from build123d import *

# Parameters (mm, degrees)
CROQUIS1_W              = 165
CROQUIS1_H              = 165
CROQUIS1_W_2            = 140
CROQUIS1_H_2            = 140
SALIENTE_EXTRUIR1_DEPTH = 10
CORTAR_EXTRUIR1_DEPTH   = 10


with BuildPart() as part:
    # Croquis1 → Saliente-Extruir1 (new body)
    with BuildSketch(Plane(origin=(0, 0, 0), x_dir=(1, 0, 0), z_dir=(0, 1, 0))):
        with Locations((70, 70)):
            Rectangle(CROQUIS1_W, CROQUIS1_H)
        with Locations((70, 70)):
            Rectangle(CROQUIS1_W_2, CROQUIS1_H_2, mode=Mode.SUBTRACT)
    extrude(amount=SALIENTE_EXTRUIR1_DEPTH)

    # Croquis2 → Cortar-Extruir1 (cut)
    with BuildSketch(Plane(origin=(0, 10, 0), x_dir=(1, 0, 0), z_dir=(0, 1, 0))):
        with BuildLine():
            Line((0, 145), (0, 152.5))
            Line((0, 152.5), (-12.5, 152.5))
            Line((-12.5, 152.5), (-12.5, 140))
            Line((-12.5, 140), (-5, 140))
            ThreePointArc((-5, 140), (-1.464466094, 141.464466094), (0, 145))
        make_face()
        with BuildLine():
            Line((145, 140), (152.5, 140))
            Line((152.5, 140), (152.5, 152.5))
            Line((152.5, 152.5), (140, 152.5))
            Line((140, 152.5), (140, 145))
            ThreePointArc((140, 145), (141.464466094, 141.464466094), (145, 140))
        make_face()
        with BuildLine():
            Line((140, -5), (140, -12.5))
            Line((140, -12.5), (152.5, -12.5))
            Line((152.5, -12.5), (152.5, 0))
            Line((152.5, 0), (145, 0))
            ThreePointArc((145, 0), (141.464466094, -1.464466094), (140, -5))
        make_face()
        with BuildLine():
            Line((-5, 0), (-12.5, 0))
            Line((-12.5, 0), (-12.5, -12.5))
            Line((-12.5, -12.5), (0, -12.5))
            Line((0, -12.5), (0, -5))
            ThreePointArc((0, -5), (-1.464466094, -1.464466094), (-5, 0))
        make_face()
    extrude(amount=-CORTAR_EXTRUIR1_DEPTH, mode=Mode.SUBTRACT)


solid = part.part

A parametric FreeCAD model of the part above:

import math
import FreeCAD as App
import Part
import Sketcher
from FreeCAD import Vector
Q = App.Units.Quantity


def add_polygon(sketch, points):
    """Adds a closed chain of lines whose ends are joined by coincident constraints."""
    first, n = sketch.GeometryCount, len(points)
    for a, b in zip(points, points[1:] + points[:1]):
        sketch.addGeometry(Part.LineSegment(App.Vector(*a, 0), App.Vector(*b, 0)), False)
    for i in range(n):
        sketch.addConstraint(Sketcher.Constraint("Coincident", first + i, 2, first + (i + 1) % n, 1))

doc = App.newDocument("Part")
body = doc.addObject("PartDesign::Body", "Body")

# Sketch on XZ plane
sketch1 = doc.addObject("Sketcher::SketchObject", "Sketch")
body.addObject(sketch1)
sketch1.AttachmentSupport = (doc.XZ_Plane, [""])
sketch1.MapMode = "FlatFace"
add_polygon(sketch1, [(-12.5, -152.5), (-12.5, 12.5), (152.5, 12.5), (152.5, -152.5)])  # lines 0-3
add_polygon(sketch1, [(140, 0), (0, 0), (0, -140), (140, -140)])  # lines 4-7
sketch1.addConstraint([
    Sketcher.Constraint("Vertical", 0),
    Sketcher.Constraint("Horizontal", 1),
    Sketcher.Constraint("Vertical", 2),
    Sketcher.Constraint("Horizontal", 3),
    Sketcher.Constraint("Horizontal", 4),
    Sketcher.Constraint("Vertical", 5),
    Sketcher.Constraint("Horizontal", 6),
    Sketcher.Constraint("Vertical", 7),
    Sketcher.Constraint("Coincident", 4, 2, -1, 1),
    Sketcher.Constraint("Equal", 3, 0),
    Sketcher.Constraint("Equal", 6, 5),
    Sketcher.Constraint("DistanceX", 1, 1, 1, 2, Q("165 mm")),
    Sketcher.Constraint("DistanceX", 4, 2, 4, 1, Q("140 mm")),
    Sketcher.Constraint("DistanceX", 0, 2, -1, 1, Q("12.5 mm")),
    Sketcher.Constraint("DistanceY", -1, 1, 0, 2, Q("12.5 mm")),
])
pad1 = doc.addObject("PartDesign::Pad", "Pad")
body.addObject(pad1)
pad1.Profile = sketch1
pad1.Length = 10
pad1.Reversed = True

# Sketch on XZ plane
sketch2 = doc.addObject("Sketcher::SketchObject", "Sketch001")
body.addObject(sketch2)
sketch2.AttachmentSupport = (doc.XZ_Plane, [""])
sketch2.MapMode = "FlatFace"
sketch2.AttachmentOffset = App.Placement(Vector(0, 0, -10), App.Rotation())
sketch2.addGeometry([
    Part.LineSegment(Vector(0, -145, 0), Vector(0, -152.5, 0)),  # 0
    Part.LineSegment(Vector(0, -152.5, 0), Vector(-12.5, -152.5, 0)),  # 1
    Part.LineSegment(Vector(-12.5, -152.5, 0), Vector(-12.5, -140, 0)),  # 2
    Part.LineSegment(Vector(-12.5, -140, 0), Vector(-5, -140, 0)),  # 3
    Part.ArcOfCircle(Part.Circle(Vector(-5, -145, 0), Vector(0, 0, 1), 5), math.radians(0), math.radians(90)),  # 4
    Part.LineSegment(Vector(145, -140, 0), Vector(152.5, -140, 0)),  # 5
    Part.LineSegment(Vector(152.5, -140, 0), Vector(152.5, -152.5, 0)),  # 6
    Part.LineSegment(Vector(152.5, -152.5, 0), Vector(140, -152.5, 0)),  # 7
    Part.LineSegment(Vector(140, -152.5, 0), Vector(140, -145, 0)),  # 8
    Part.ArcOfCircle(Part.Circle(Vector(145, -145, 0), Vector(0, 0, 1), 5), math.radians(90), math.radians(180)),  # 9
    Part.LineSegment(Vector(140, 5, 0), Vector(140, 12.5, 0)),  # 10
    Part.LineSegment(Vector(140, 12.5, 0), Vector(152.5, 12.5, 0)),  # 11
    Part.LineSegment(Vector(152.5, 12.5, 0), Vector(152.5, 0, 0)),  # 12
    Part.LineSegment(Vector(152.5, 0, 0), Vector(145, 0, 0)),  # 13
    Part.ArcOfCircle(Part.Circle(Vector(145, 5, 0), Vector(0, 0, 1), 5), math.radians(180), math.radians(270)),  # 14
    Part.LineSegment(Vector(-5, 0, 0), Vector(-12.5, 0, 0)),  # 15
    Part.LineSegment(Vector(-12.5, 0, 0), Vector(-12.5, 12.5, 0)),  # 16
    Part.LineSegment(Vector(-12.5, 12.5, 0), Vector(0, 12.5, 0)),  # 17
    Part.LineSegment(Vector(0, 12.5, 0), Vector(0, 5, 0)),  # 18
    Part.ArcOfCircle(Part.Circle(Vector(-5, 5, 0), Vector(0, 0, 1), 5), math.radians(-90), math.radians(0)),  # 19
], False)
sketch2.addConstraint([
    Sketcher.Constraint("Coincident", 0, 2, 1, 1),
    Sketcher.Constraint("Coincident", 1, 2, 2, 1),
    Sketcher.Constraint("Coincident", 2, 2, 3, 1),
    Sketcher.Constraint("Tangent", 3, 2, 4, 2),
    Sketcher.Constraint("Tangent", 4, 1, 0, 1),
    Sketcher.Constraint("Coincident", 5, 2, 6, 1),
    Sketcher.Constraint("Coincident", 6, 2, 7, 1),
    Sketcher.Constraint("Coincident", 7, 2, 8, 1),
    Sketcher.Constraint("Tangent", 8, 2, 9, 2),
    Sketcher.Constraint("Tangent", 9, 1, 5, 1),
    Sketcher.Constraint("Coincident", 10, 2, 11, 1),
    Sketcher.Constraint("Coincident", 11, 2, 12, 1),
    Sketcher.Constraint("Coincident", 12, 2, 13, 1),
    Sketcher.Constraint("Tangent", 13, 2, 14, 2),
    Sketcher.Constraint("Tangent", 14, 1, 10, 1),
    Sketcher.Constraint("Coincident", 15, 2, 16, 1),
    Sketcher.Constraint("Coincident", 16, 2, 17, 1),
    Sketcher.Constraint("Coincident", 17, 2, 18, 1),
    Sketcher.Constraint("Tangent", 18, 2, 19, 2),
    Sketcher.Constraint("Tangent", 19, 1, 15, 1),
    Sketcher.Constraint("Vertical", 0),
    Sketcher.Constraint("Horizontal", 1),
    Sketcher.Constraint("Vertical", 2),
    Sketcher.Constraint("Horizontal", 3),
    Sketcher.Constraint("Horizontal", 5),
    Sketcher.Constraint("Vertical", 6),
    Sketcher.Constraint("Horizontal", 7),
    Sketcher.Constraint("Vertical", 8),
    Sketcher.Constraint("Vertical", 10),
    Sketcher.Constraint("Horizontal", 11),
    Sketcher.Constraint("Vertical", 12),
    Sketcher.Constraint("Horizontal", 13),
    Sketcher.Constraint("Horizontal", 15),
    Sketcher.Constraint("Vertical", 16),
    Sketcher.Constraint("Horizontal", 17),
    Sketcher.Constraint("Vertical", 18),
    Sketcher.Constraint("Equal", 4, 9),
    Sketcher.Constraint("Equal", 9, 14),
    Sketcher.Constraint("Equal", 14, 19),
    Sketcher.Constraint("PointOnObject", 0, 2, -2),
    Sketcher.Constraint("PointOnObject", 12, 2, -1),
    Sketcher.Constraint("PointOnObject", 15, 2, -1),
    Sketcher.Constraint("PointOnObject", 17, 2, -2),
    Sketcher.Constraint("Horizontal", 4, 3, 9, 3),
    Sketcher.Constraint("Horizontal", 1, 2, 6, 2),
    Sketcher.Constraint("Horizontal", 11, 2, 16, 2),
    Sketcher.Constraint("Vertical", 9, 3, 14, 3),
    Sketcher.Constraint("Vertical", 6, 2, 11, 2),
    Sketcher.Constraint("Vertical", 2, 2, 15, 2),
    Sketcher.Constraint("Equal", 3, 5),
    Sketcher.Constraint("Equal", 15, 0),
    Sketcher.Constraint("Equal", 8, 10),
    Sketcher.Constraint("Radius", 4, Q("5 mm")),
    Sketcher.Constraint("DistanceX", 1, 2, 1, 1, Q("12.5 mm")),
    Sketcher.Constraint("DistanceY", 4, 3, -1, 1, Q("145 mm")),
    Sketcher.Constraint("DistanceX", -1, 1, 9, 3, Q("145 mm")),
])
pocket1 = doc.addObject("PartDesign::Pocket", "Pocket")
body.addObject(pocket1)
pocket1.Profile = sketch2
pocket1.Length = 10
pocket1.Reversed = True

doc.recompute()
